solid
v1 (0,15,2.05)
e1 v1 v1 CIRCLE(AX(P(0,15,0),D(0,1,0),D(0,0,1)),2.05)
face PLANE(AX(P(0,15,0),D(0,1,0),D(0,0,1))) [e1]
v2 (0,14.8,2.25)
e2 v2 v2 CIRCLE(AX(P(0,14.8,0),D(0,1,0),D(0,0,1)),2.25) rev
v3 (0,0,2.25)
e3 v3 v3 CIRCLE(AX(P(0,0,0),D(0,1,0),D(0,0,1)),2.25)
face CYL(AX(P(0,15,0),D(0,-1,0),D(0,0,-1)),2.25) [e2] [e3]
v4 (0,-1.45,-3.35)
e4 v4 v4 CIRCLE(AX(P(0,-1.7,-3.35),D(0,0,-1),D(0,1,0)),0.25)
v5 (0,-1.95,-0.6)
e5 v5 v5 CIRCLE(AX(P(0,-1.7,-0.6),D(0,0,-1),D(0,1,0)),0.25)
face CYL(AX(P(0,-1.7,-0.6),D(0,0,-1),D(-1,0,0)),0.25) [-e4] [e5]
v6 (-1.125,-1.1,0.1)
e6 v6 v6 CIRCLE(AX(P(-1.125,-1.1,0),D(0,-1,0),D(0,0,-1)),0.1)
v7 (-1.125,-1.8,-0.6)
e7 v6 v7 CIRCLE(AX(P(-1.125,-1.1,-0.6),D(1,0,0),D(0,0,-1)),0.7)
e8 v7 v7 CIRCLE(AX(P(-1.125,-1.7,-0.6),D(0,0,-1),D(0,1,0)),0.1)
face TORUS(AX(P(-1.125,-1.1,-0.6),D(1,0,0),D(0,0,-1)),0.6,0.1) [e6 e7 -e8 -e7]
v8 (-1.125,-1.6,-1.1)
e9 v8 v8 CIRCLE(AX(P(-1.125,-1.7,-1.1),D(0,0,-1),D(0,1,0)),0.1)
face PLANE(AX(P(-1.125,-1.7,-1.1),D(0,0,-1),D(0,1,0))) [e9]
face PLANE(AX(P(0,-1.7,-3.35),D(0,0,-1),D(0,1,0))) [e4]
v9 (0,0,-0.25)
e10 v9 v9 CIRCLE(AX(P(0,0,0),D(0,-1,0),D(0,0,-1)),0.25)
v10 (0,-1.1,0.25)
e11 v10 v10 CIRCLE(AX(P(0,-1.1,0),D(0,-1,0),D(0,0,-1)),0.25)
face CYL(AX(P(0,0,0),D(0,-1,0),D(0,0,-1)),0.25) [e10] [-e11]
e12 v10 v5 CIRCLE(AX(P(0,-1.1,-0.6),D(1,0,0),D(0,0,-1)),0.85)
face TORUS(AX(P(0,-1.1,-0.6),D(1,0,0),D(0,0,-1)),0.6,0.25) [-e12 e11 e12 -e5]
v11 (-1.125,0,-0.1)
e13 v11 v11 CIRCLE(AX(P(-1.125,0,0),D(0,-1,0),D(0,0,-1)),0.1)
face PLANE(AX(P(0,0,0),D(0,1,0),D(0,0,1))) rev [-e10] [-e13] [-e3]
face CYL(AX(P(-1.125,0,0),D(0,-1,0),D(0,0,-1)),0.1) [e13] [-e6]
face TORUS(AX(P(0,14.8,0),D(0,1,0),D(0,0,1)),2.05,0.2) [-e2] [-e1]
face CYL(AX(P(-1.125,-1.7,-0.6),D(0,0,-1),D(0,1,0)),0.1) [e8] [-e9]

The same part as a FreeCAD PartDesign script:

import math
import FreeCAD as App
import Part
import Sketcher


def edges_at(feature, points):
    """Names of the edges that pass closest to the given points."""
    edges = feature.Shape.Edges
    near = lambda p: min(range(len(edges)), key=lambda i: edges[i].distToShape(Part.Vertex(*p))[0])
    return sorted({f"Edge{near(p) + 1}" for p in points})

doc = App.newDocument("Part")
body = doc.addObject("PartDesign::Body", "Body")

sketch1 = body.newObject("Sketcher::SketchObject", "Sketch")
sketch1.AttachmentSupport = (doc.getObject("XZ_Plane"), [""])
sketch1.MapMode = "FlatFace"
sketch1.addGeometry(Part.Circle(App.Vector(0, 0, 0), App.Vector(0, 0, 1), 2.2), False)
sketch1.addConstraint(Sketcher.Constraint("Coincident", 0, 3, -1, 1))
sketch1.addConstraint(Sketcher.Constraint("Diameter", 0, 4.5))
pad1 = body.newObject("PartDesign::Pad", "Pad")
pad1.Profile = sketch1
pad1.Length = 15
pad1.Reversed = True

sketch2 = body.newObject("Sketcher::SketchObject", "Sketch001")
sketch2.AttachmentSupport = (doc.getObject("XZ_Plane"), [""])
sketch2.MapMode = "FlatFace"
sketch2.addGeometry(Part.Circle(App.Vector(0, 0, 0), App.Vector(0, 0, 1), 0.25), False)
sketch2.addConstraint(Sketcher.Constraint("Coincident", 0, 3, -1, 1))
sketch2.addConstraint(Sketcher.Constraint("Diameter", 0, 0.5))

sketch3 = body.newObject("Sketcher::SketchObject", "Sketch002")
sketch3.AttachmentSupport = (doc.getObject("YZ_Plane"), [""])
sketch3.MapMode = "FlatFace"
sketch3.addGeometry(Part.LineSegment(App.Vector(0, 0, 0), App.Vector(-1.1, 0, 0)), False)
sketch3.addGeometry(Part.ArcOfCircle(Part.Circle(App.Vector(-1.1, -0.6, 0), App.Vector(0, 0, 1), 0.6), math.radians(90), math.radians(180)), False)
sketch3.addGeometry(Part.LineSegment(App.Vector(-1.7, -0.6, 0), App.Vector(-1.7, -3.4, 0)), False)
sketch3.addConstraint(Sketcher.Constraint("Tangent", 0, 2, 1, 1))
sketch3.addConstraint(Sketcher.Constraint("Tangent", 1, 2, 2, 1))
sketch3.addConstraint(Sketcher.Constraint("Horizontal", 0))
sketch3.addConstraint(Sketcher.Constraint("Vertical", 2))
sketch3.addConstraint(Sketcher.Constraint("Coincident", 0, 1, -1, 1))
sketch3.addConstraint(Sketcher.Constraint("Radius", 1, 0.6))
sketch3.addConstraint(Sketcher.Constraint("DistanceX", 0, 2, 0, 1, 1.1))
sketch3.addConstraint(Sketcher.Constraint("DistanceY", 2, 2, 2, 1, 2.75))
doc.recompute()

additivepipe = body.newObject("PartDesign::AdditivePipe", "AdditivePipe")
additivepipe.Profile = sketch2
additivepipe.Spine = (sketch3, ["Edge1", "Edge2", "Edge3"])

sketch4 = body.newObject("Sketcher::SketchObject", "Sketch003")
sketch4.AttachmentSupport = (doc.getObject("XZ_Plane"), [""])
sketch4.MapMode = "FlatFace"
sketch4.addGeometry(Part.Circle(App.Vector(-1.12, 0, 0), App.Vector(0, 0, 1), 0.1), False)
sketch4.addConstraint(Sketcher.Constraint("PointOnObject", 0, 3, -1))
sketch4.addConstraint(Sketcher.Constraint("Diameter", 0, 0.2))
sketch4.addConstraint(Sketcher.Constraint("DistanceX", 0, 3, -1, 1, 1.125))

sketch5 = body.newObject("Sketcher::SketchObject", "Sketch004")
sketch5.AttachmentSupport = (doc.getObject("YZ_Plane"), [""])
sketch5.MapMode = "FlatFace"
sketch5.addGeometry(Part.LineSegment(App.Vector(0, 0, 0), App.Vector(-1.1, 0, 0)), False)
sketch5.addGeometry(Part.ArcOfCircle(Part.Circle(App.Vector(-1.1, -0.6, 0), App.Vector(0, 0, 1), 0.6), math.radians(90), math.radians(180)), False)
sketch5.addGeometry(Part.LineSegment(App.Vector(-1.7, -0.6, 0), App.Vector(-1.7, -1.1, 0)), False)
sketch5.addConstraint(Sketcher.Constraint("Tangent", 0, 2, 1, 1))
sketch5.addConstraint(Sketcher.Constraint("Tangent", 1, 2, 2, 1))
sketch5.addConstraint(Sketcher.Constraint("Horizontal", 0))
sketch5.addConstraint(Sketcher.Constraint("Vertical", 2))
sketch5.addConstraint(Sketcher.Constraint("Coincident", 0, 1, -1, 1))
sketch5.addConstraint(Sketcher.Constraint("Radius", 1, 0.6))
sketch5.addConstraint(Sketcher.Constraint("DistanceX", 0, 2, 0, 1, 1.1))
sketch5.addConstraint(Sketcher.Constraint("DistanceY", 2, 2, 2, 1, 0.5))
doc.recompute()

additivepipe2 = body.newObject("PartDesign::AdditivePipe", "AdditivePipe001")
additivepipe2.Profile = sketch4
additivepipe2.Spine = (sketch5, ["Edge1", "Edge2", "Edge3"])
doc.recompute()

fillet = body.newObject("PartDesign::Fillet", "Fillet")
fillet.Base = (additivepipe2, edges_at(additivepipe2, [(0, 15, -2.25)]))
fillet.Radius = 0.2

doc.recompute()
